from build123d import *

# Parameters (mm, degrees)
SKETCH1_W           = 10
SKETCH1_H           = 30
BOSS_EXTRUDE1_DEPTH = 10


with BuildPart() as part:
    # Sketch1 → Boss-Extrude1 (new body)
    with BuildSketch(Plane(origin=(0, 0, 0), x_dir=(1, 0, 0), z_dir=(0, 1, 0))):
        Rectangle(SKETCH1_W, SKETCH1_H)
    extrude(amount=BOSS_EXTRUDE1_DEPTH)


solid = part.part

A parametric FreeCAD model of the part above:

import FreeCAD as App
import Part
import Sketcher
from FreeCAD import Vector

doc = App.newDocument("Part")
body = doc.addObject("PartDesign::Body", "Body")

sketch1 = body.newObject("Sketcher::SketchObject", "Sketch")
sketch1.AttachmentSupport = (doc.getObject("XZ_Plane"), [""])
sketch1.MapMode = "FlatFace"
sketch1.addGeometry([
    Part.LineSegment(Vector(-5, -15, 0), Vector(-5, 15, 0)),
    Part.LineSegment(Vector(-5, 15, 0), Vector(5, 15, 0)),
    Part.LineSegment(Vector(5, 15, 0), Vector(5, -15, 0)),
    Part.LineSegment(Vector(5, -15, 0), Vector(-5, -15, 0)),
], False)
sketch1.addConstraint([
    Sketcher.Constraint("Coincident", 0, 2, 1, 1),
    Sketcher.Constraint("Coincident", 1, 2, 2, 1),
    Sketcher.Constraint("Coincident", 2, 2, 3, 1),
    Sketcher.Constraint("Coincident", 3, 2, 0, 1),
    Sketcher.Constraint("Vertical", 0),
    Sketcher.Constraint("Horizontal", 1),
    Sketcher.Constraint("Vertical", 2),
    Sketcher.Constraint("Horizontal", 3),
    Sketcher.Constraint("Symmetric", 0, 2, 2, 2, -1, 1),
    Sketcher.Constraint("DistanceX", 1, 1, 1, 2, 10.0),
    Sketcher.Constraint("DistanceY", 0, 1, 0, 2, 30.0),
])
pad1 = body.newObject("PartDesign::Pad", "Pad")
pad1.Profile = sketch1
pad1.Length = 10
pad1.Reversed = True

doc.recompute()
